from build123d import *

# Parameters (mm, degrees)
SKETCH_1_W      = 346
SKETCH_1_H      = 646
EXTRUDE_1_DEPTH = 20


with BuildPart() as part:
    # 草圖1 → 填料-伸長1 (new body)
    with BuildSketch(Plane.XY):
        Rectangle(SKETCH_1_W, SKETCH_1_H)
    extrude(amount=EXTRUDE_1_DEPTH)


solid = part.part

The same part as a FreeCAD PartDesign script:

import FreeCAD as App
import Part
import Sketcher
Q = App.Units.Quantity


def add_polygon(sketch, points):
    """Adds a closed chain of lines whose ends are joined by coincident constraints."""
    first, n = sketch.GeometryCount, len(points)
    for a, b in zip(points, points[1:] + points[:1]):
        sketch.addGeometry(Part.LineSegment(App.Vector(*a, 0), App.Vector(*b, 0)), False)
    for i in range(n):
        sketch.addConstraint(Sketcher.Constraint("Coincident", first + i, 2, first + (i + 1) % n, 1))

doc = App.newDocument("Part")
params = doc.addObject("Spreadsheet::Sheet", "Params")
for row, (alias, value) in enumerate([
    ("sketch1_width", "346 mm"),
    ("sketch1_height", "646 mm"),
    ("pad1_length", "20 mm"),
], start=1):
    params.set(f"A{row}", alias)
    params.set(f"B{row}", "=" + value)
    params.setAlias(f"B{row}", alias)

body = doc.addObject("PartDesign::Body", "Body")

sketch1 = doc.addObject("Sketcher::SketchObject", "Sketch")
body.addObject(sketch1)
sketch1.AttachmentSupport = (doc.XY_Plane, [""])
sketch1.MapMode = "FlatFace"
add_polygon(sketch1, [(-173, 323), (-173, -323), (173, -323), (173, 323)])
sketch1.addConstraint([
    Sketcher.Constraint("Vertical", 0),
    Sketcher.Constraint("Horizontal", 1),
    Sketcher.Constraint("Vertical", 2),
    Sketcher.Constraint("Horizontal", 3),
    Sketcher.Constraint("Symmetric", 0, 2, 2, 2, -1, 1),
    Sketcher.Constraint("DistanceX", 1, 1, 1, 2, Q("346 mm")),
    Sketcher.Constraint("DistanceY", 0, 2, 0, 1, Q("646 mm")),
])
sketch1.setExpression("Constraints[9]", "Params.sketch1_width")
sketch1.setExpression("Constraints[10]", "Params.sketch1_height")
pad1 = doc.addObject("PartDesign::Pad", "Pad")
body.addObject(pad1)
pad1.Profile = sketch1
pad1.setExpression("Length", "Params.pad1_length")

doc.recompute()
